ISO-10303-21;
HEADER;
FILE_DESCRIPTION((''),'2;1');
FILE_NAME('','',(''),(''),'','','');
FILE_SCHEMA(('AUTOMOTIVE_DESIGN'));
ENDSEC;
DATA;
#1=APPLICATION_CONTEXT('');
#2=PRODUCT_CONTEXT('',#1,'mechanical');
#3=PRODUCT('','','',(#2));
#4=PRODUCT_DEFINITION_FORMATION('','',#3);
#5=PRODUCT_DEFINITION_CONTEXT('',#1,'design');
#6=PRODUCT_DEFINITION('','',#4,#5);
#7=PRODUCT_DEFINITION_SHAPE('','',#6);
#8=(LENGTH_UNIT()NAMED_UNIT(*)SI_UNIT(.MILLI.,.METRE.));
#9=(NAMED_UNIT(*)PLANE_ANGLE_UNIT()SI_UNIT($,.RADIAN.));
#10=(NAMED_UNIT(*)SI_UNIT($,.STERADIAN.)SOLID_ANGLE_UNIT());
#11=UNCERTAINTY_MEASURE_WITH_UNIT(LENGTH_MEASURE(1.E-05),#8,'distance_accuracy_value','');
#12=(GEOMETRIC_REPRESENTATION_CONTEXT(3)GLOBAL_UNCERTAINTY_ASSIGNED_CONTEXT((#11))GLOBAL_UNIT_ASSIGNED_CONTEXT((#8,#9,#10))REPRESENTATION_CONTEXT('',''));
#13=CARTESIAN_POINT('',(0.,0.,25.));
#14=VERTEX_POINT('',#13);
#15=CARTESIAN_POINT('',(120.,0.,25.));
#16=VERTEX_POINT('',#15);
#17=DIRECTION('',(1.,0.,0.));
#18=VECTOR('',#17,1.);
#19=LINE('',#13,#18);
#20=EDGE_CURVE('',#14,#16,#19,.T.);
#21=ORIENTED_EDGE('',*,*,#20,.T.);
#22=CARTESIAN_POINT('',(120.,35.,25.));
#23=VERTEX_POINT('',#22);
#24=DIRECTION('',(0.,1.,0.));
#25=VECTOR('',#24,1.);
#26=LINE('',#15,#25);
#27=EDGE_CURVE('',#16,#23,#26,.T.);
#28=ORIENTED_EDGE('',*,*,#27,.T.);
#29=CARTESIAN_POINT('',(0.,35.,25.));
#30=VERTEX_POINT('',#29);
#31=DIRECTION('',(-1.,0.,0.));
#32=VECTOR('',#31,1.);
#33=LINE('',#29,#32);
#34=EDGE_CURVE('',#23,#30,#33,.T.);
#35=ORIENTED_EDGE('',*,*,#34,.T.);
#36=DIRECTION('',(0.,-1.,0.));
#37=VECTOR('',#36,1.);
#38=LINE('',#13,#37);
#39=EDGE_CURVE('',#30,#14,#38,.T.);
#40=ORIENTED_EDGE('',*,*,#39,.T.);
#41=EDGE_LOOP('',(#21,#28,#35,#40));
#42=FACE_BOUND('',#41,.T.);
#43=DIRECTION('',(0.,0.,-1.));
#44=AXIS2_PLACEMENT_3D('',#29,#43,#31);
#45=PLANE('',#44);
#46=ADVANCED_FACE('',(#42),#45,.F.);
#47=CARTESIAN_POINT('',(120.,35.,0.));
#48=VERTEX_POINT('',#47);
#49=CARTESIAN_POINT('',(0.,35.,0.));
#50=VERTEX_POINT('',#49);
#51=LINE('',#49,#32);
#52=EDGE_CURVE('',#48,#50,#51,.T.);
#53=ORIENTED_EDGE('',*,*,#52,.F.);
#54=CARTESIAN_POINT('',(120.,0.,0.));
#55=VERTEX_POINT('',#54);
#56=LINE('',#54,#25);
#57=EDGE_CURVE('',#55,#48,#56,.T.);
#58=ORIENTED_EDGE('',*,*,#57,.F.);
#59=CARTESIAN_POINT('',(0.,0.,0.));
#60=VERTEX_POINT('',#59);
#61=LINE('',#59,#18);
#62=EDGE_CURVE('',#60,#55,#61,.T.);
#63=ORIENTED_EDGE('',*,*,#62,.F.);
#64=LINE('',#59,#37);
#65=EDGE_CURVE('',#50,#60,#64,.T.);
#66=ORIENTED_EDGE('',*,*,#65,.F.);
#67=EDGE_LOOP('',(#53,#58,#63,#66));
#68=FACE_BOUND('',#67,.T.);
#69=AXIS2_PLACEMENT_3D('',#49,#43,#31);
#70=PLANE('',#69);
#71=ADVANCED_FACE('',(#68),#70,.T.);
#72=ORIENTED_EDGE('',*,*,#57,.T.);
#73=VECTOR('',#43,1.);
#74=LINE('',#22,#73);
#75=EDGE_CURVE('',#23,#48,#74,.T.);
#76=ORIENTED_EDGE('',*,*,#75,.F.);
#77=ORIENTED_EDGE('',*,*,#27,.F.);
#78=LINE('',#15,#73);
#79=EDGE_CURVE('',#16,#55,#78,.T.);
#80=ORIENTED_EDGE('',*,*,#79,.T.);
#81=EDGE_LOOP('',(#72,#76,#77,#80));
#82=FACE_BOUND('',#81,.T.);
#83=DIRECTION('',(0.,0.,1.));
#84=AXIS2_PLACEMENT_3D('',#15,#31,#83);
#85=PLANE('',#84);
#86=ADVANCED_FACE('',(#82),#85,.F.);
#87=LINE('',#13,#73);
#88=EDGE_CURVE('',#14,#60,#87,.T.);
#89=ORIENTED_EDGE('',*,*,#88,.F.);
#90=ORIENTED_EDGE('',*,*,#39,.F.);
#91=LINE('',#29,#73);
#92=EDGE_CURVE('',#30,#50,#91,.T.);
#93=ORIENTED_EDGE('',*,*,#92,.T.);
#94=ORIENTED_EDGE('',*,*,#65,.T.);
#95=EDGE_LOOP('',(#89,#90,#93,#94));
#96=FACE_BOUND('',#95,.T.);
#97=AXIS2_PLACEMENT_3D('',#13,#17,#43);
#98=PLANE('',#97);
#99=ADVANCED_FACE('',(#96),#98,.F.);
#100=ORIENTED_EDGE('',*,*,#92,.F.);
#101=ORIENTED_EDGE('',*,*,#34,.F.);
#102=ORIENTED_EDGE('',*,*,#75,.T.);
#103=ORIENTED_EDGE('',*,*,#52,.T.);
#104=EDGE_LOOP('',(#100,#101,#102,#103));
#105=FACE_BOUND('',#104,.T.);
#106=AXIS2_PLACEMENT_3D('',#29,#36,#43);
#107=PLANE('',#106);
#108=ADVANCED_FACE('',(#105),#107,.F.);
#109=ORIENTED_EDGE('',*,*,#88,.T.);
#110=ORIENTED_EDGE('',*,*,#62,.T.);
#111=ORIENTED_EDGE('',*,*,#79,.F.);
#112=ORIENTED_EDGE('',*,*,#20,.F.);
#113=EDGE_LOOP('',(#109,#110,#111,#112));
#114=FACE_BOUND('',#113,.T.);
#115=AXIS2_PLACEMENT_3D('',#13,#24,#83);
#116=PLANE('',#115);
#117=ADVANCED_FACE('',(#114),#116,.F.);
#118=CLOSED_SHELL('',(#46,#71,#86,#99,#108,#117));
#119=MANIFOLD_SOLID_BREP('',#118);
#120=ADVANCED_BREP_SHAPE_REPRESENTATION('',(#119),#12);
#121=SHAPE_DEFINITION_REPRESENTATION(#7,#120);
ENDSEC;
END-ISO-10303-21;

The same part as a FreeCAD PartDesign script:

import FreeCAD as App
import Part
import Sketcher
Q = App.Units.Quantity

doc = App.newDocument("Part")
params = doc.addObject("Spreadsheet::Sheet", "Params")
for row, (alias, value) in enumerate([
    ("sketch1_width", "120 mm"),
    ("sketch1_height", "35 mm"),
    ("pad1_length", "25 mm"),
], start=1):
    params.set(f"A{row}", alias)
    params.set(f"B{row}", "=" + value)
    params.setAlias(f"B{row}", alias)

body = doc.addObject("PartDesign::Body", "Body")

sketch1 = doc.addObject("Sketcher::SketchObject", "Sketch")
body.addObject(sketch1)
sketch1.AttachmentSupport = (doc.XY_Plane, [""])
sketch1.MapMode = "FlatFace"
sketch1.addGeometry(Part.LineSegment(App.Vector(0, 35, 0), App.Vector(0, 0, 0)), False)
sketch1.addGeometry(Part.LineSegment(App.Vector(0, 0, 0), App.Vector(120, 0, 0)), False)
sketch1.addGeometry(Part.LineSegment(App.Vector(120, 0, 0), App.Vector(120, 35, 0)), False)
sketch1.addGeometry(Part.LineSegment(App.Vector(120, 35, 0), App.Vector(0, 35, 0)), False)
sketch1.addConstraint(Sketcher.Constraint("Coincident", 0, 2, 1, 1))
sketch1.addConstraint(Sketcher.Constraint("Coincident", 1, 2, 2, 1))
sketch1.addConstraint(Sketcher.Constraint("Coincident", 2, 2, 3, 1))
sketch1.addConstraint(Sketcher.Constraint("Coincident", 3, 2, 0, 1))
sketch1.addConstraint(Sketcher.Constraint("Vertical", 0))
sketch1.addConstraint(Sketcher.Constraint("Horizontal", 1))
sketch1.addConstraint(Sketcher.Constraint("Vertical", 2))
sketch1.addConstraint(Sketcher.Constraint("Horizontal", 3))
sketch1.addConstraint(Sketcher.Constraint("Coincident", 0, 2, -1, 1))
sketch1.addConstraint(Sketcher.Constraint("DistanceX", 1, 1, 1, 2, Q("120 mm")))
sketch1.addConstraint(Sketcher.Constraint("DistanceY", 0, 2, 0, 1, Q("35 mm")))
sketch1.setExpression("Constraints[9]", "Params.sketch1_width")
sketch1.setExpression("Constraints[10]", "Params.sketch1_height")
pad1 = doc.addObject("PartDesign::Pad", "Pad")
body.addObject(pad1)
pad1.Profile = sketch1
pad1.setExpression("Length", "Params.pad1_length")

doc.recompute()
